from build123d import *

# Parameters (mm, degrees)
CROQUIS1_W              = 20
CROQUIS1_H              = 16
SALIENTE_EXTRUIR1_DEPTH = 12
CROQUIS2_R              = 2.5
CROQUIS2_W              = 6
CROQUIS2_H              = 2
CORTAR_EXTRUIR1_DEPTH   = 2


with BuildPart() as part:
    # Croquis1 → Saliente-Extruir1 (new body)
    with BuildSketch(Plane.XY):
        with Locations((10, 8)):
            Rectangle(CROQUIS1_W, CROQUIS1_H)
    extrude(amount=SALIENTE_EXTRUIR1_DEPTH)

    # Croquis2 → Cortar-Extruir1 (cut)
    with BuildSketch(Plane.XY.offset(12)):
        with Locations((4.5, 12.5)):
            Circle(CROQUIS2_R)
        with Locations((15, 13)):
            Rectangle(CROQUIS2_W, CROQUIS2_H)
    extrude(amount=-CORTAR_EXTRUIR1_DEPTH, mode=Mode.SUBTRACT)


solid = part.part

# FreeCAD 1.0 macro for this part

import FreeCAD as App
import Part
import Sketcher
from FreeCAD import Vector
Q = App.Units.Quantity

doc = App.newDocument("Part")
params = doc.addObject("Spreadsheet::Sheet", "Params")
for row, (alias, value) in enumerate([
    ("sketch1_width", "20 mm"),
    ("sketch1_height", "16 mm"),
    ("pad1_length", "12 mm"),
    ("sketch2_diameter", "5 mm"),
    ("sketch2_width", "6 mm"),
    ("sketch2_height", "2 mm"),
    ("pocket1_length", "2 mm"),
], start=1):
    params.set(f"A{row}", alias)
    params.set(f"B{row}", "=" + value)
    params.setAlias(f"B{row}", alias)

body = doc.addObject("PartDesign::Body", "Body")

# Sketch on XY plane
sketch1 = doc.addObject("Sketcher::SketchObject", "Sketch")
body.addObject(sketch1)
sketch1.AttachmentSupport = (doc.XY_Plane, [""])
sketch1.MapMode = "FlatFace"
sketch1.addGeometry(Part.LineSegment(Vector(0, 16, 0), Vector(0, 0, 0)), False)
sketch1.addGeometry(Part.LineSegment(Vector(0, 0, 0), Vector(20, 0, 0)), False)
sketch1.addGeometry(Part.LineSegment(Vector(20, 0, 0), Vector(20, 16, 0)), False)
sketch1.addGeometry(Part.LineSegment(Vector(20, 16, 0), Vector(0, 16, 0)), False)
sketch1.addConstraint(Sketcher.Constraint("Coincident", 0, 2, 1, 1))
sketch1.addConstraint(Sketcher.Constraint("Coincident", 1, 2, 2, 1))
sketch1.addConstraint(Sketcher.Constraint("Coincident", 2, 2, 3, 1))
sketch1.addConstraint(Sketcher.Constraint("Coincident", 3, 2, 0, 1))
sketch1.addConstraint(Sketcher.Constraint("Vertical", 0))
sketch1.addConstraint(Sketcher.Constraint("Horizontal", 1))
sketch1.addConstraint(Sketcher.Constraint("Vertical", 2))
sketch1.addConstraint(Sketcher.Constraint("Horizontal", 3))
sketch1.addConstraint(Sketcher.Constraint("Coincident", 0, 2, -1, 1))
sketch1.addConstraint(Sketcher.Constraint("DistanceX", 1, 1, 1, 2, Q("20 mm")))
sketch1.addConstraint(Sketcher.Constraint("DistanceY", 0, 2, 0, 1, Q("16 mm")))
sketch1.setExpression("Constraints[9]", "Params.sketch1_width")
sketch1.setExpression("Constraints[10]", "Params.sketch1_height")
pad1 = doc.addObject("PartDesign::Pad", "Pad")
body.addObject(pad1)
pad1.Profile = sketch1
pad1.setExpression("Length", "Params.pad1_length")

# Sketch on XY plane
sketch2 = doc.addObject("Sketcher::SketchObject", "Sketch001")
body.addObject(sketch2)
sketch2.AttachmentSupport = (doc.XY_Plane, [""])
sketch2.MapMode = "FlatFace"
sketch2.AttachmentOffset = App.Placement(Vector(0, 0, 12), App.Rotation())
sketch2.addGeometry(Part.Circle(Vector(4.5, 12.5, 0), Vector(0, 0, 1), 2.5), False)
sketch2.addGeometry(Part.LineSegment(Vector(12, 14, 0), Vector(12, 12, 0)), False)
sketch2.addGeometry(Part.LineSegment(Vector(12, 12, 0), Vector(18, 12, 0)), False)
sketch2.addGeometry(Part.LineSegment(Vector(18, 12, 0), Vector(18, 14, 0)), False)
sketch2.addGeometry(Part.LineSegment(Vector(18, 14, 0), Vector(12, 14, 0)), False)
sketch2.addConstraint(Sketcher.Constraint("Coincident", 1, 2, 2, 1))
sketch2.addConstraint(Sketcher.Constraint("Coincident", 2, 2, 3, 1))
sketch2.addConstraint(Sketcher.Constraint("Coincident", 3, 2, 4, 1))
sketch2.addConstraint(Sketcher.Constraint("Coincident", 4, 2, 1, 1))
sketch2.addConstraint(Sketcher.Constraint("Vertical", 1))
sketch2.addConstraint(Sketcher.Constraint("Horizontal", 2))
sketch2.addConstraint(Sketcher.Constraint("Vertical", 3))
sketch2.addConstraint(Sketcher.Constraint("Horizontal", 4))
sketch2.addConstraint(Sketcher.Constraint("Diameter", 0, Q("5 mm")))
sketch2.addConstraint(Sketcher.Constraint("DistanceX", 2, 1, 2, 2, Q("6 mm")))
sketch2.addConstraint(Sketcher.Constraint("DistanceY", 1, 2, 1, 1, Q("2 mm")))
sketch2.addConstraint(Sketcher.Constraint("DistanceX", -1, 1, 1, 2, Q("12 mm")))
sketch2.addConstraint(Sketcher.Constraint("DistanceY", -1, 1, 1, 2, Q("12 mm")))
sketch2.addConstraint(Sketcher.Constraint("DistanceX", -1, 1, 0, 3, Q("4.5 mm")))
sketch2.addConstraint(Sketcher.Constraint("DistanceY", -1, 1, 0, 3, Q("12.5 mm")))
sketch2.setExpression("Constraints[8]", "Params.sketch2_diameter")
sketch2.setExpression("Constraints[9]", "Params.sketch2_width")
sketch2.setExpression("Constraints[10]", "Params.sketch2_height")
pocket1 = doc.addObject("PartDesign::Pocket", "Pocket")
body.addObject(pocket1)
pocket1.Profile = sketch2
pocket1.setExpression("Length", "Params.pocket1_length")

doc.recompute()
